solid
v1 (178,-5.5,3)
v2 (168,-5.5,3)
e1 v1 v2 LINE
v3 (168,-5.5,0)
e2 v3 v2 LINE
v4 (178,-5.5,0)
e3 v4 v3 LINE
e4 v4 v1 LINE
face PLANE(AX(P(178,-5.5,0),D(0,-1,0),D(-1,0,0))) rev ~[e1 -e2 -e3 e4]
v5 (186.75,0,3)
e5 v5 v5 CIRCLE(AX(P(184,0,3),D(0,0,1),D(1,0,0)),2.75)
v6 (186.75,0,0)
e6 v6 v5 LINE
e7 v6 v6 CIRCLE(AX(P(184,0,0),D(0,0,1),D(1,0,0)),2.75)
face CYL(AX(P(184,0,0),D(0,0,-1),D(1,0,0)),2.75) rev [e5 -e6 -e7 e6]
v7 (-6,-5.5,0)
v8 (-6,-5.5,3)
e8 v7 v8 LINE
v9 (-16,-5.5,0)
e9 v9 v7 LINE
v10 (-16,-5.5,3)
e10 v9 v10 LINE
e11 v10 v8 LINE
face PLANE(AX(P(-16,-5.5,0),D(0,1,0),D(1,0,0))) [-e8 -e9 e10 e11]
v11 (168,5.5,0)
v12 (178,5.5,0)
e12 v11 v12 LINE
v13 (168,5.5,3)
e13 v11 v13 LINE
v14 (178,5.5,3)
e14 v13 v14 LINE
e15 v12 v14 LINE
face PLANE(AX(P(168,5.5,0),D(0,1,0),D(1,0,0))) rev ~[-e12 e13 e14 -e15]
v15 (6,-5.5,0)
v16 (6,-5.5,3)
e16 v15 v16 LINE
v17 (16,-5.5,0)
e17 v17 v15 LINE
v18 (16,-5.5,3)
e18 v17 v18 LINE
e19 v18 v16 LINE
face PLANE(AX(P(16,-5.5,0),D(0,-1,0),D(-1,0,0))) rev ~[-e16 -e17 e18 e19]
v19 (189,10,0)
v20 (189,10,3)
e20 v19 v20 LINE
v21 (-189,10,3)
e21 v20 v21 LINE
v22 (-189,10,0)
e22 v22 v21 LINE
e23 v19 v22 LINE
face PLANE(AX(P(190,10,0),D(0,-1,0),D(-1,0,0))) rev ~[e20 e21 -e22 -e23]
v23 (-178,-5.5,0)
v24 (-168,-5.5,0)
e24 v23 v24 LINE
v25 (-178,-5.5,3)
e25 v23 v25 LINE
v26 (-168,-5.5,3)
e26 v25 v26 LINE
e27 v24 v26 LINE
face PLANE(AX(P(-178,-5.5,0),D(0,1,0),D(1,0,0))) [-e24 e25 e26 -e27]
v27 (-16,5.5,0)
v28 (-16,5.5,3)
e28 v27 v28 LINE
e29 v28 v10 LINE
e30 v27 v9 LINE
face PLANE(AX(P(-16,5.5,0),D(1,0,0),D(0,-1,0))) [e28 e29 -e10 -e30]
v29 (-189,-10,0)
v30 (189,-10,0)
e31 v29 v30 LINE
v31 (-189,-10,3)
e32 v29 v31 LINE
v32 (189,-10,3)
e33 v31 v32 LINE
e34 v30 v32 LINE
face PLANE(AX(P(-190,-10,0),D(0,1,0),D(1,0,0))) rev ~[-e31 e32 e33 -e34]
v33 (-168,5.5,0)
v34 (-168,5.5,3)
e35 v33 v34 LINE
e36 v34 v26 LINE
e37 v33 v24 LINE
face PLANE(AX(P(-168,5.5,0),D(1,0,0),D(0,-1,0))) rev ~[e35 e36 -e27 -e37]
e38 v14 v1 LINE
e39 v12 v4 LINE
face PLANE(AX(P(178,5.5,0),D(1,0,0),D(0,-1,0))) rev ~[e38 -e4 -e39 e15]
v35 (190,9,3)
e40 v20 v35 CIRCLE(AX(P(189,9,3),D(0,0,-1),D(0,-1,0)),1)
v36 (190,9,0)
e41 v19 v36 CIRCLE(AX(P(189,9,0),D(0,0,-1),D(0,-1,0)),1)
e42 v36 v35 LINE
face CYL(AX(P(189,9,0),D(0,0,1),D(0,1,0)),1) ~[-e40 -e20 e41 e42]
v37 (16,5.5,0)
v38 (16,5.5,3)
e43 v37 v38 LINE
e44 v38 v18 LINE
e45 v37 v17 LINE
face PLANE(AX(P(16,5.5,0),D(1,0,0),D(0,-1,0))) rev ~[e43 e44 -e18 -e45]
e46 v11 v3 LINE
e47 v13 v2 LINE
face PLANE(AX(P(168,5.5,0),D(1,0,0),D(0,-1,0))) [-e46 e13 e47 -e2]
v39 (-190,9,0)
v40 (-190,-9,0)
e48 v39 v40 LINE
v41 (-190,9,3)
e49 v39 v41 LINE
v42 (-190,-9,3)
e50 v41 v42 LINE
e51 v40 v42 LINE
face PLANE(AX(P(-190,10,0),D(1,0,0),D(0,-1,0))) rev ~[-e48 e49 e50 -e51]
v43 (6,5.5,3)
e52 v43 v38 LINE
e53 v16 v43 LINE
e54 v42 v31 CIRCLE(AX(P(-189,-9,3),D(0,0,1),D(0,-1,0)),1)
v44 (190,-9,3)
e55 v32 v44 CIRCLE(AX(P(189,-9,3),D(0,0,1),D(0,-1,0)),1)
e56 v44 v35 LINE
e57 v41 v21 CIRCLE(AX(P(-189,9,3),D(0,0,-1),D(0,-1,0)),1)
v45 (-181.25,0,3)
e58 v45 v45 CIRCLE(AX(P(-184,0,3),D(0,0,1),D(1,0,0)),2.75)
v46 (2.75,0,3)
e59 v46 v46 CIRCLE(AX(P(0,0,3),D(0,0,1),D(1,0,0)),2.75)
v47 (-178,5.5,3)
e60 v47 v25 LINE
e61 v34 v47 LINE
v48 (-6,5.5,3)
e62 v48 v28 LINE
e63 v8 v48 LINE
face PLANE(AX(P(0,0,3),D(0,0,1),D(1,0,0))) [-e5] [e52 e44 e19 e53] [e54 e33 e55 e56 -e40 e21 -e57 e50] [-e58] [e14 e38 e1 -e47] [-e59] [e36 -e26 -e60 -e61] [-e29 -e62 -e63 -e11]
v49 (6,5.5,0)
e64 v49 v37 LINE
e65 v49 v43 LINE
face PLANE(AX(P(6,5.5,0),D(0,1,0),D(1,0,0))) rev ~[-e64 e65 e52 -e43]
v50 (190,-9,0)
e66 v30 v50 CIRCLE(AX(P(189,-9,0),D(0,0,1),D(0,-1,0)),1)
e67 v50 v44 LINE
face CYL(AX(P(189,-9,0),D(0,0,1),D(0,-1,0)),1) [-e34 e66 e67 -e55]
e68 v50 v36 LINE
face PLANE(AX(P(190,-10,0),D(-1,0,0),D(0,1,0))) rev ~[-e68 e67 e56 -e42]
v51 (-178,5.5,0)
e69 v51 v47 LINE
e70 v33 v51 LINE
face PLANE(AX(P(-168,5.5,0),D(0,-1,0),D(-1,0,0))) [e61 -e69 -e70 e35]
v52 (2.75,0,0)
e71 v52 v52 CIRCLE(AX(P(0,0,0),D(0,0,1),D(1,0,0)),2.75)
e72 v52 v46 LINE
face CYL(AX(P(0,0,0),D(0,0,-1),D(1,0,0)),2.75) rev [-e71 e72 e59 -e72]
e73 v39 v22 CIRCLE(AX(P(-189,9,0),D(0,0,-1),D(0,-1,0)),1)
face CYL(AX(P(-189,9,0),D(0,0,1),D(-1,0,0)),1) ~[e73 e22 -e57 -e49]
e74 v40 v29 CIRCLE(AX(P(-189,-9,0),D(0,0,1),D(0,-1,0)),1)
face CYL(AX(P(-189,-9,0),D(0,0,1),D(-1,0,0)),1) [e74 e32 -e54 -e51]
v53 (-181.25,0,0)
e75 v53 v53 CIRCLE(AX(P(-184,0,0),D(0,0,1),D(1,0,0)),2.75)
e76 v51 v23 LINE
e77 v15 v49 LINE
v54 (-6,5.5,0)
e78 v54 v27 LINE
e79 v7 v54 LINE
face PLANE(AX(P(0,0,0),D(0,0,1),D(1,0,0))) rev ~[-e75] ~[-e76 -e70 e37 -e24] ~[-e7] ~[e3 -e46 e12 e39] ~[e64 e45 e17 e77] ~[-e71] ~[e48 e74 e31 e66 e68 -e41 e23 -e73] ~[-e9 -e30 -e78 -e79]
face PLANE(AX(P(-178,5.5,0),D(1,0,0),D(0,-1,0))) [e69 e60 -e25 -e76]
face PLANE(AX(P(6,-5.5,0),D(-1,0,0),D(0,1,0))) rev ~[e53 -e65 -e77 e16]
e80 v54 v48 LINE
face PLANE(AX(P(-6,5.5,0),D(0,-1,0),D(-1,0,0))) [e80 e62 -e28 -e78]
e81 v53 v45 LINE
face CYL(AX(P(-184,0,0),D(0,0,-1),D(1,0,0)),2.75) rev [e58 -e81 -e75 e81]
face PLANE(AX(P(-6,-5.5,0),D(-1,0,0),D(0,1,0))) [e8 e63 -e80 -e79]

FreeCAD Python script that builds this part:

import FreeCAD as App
import Part
import Sketcher

V = App.Vector
Q = App.Units.Quantity


def edges_at(feature, points):
    """Names of the edges that pass closest to the given points."""
    edges = feature.Shape.Edges
    near = lambda p: min(range(len(edges)), key=lambda i: edges[i].distToShape(Part.Vertex(*p))[0])
    return sorted({f"Edge{near(p) + 1}" for p in points})


def add_polygon(sketch, points):
    """Adds a closed chain of lines whose ends are joined by coincident constraints."""
    first, n = sketch.GeometryCount, len(points)
    for a, b in zip(points, points[1:] + points[:1]):
        sketch.addGeometry(Part.LineSegment(App.Vector(*a, 0), App.Vector(*b, 0)), False)
    for i in range(n):
        sketch.addConstraint(Sketcher.Constraint("Coincident", first + i, 2, first + (i + 1) % n, 1))

doc = App.newDocument("Part")
body = doc.addObject("PartDesign::Body", "Body")

# Sketch on XY plane
sketch1 = body.newObject("Sketcher::SketchObject", "Sketch")
sketch1.AttachmentSupport = (doc.getObject("XY_Plane"), [""])
sketch1.MapMode = "FlatFace"
add_polygon(sketch1, [(-190, 10), (-190, -10), (190, -10), (190, 10)])  # lines 0-3
sketch1.addGeometry(Part.Circle(V(-184, 0, 0), V(0, 0, 1), 2.75), False)  # 4
add_polygon(sketch1, [(-168, -5.5), (-178, -5.5), (-178, 5.5), (-168, 5.5)])  # lines 5-8
add_polygon(sketch1, [(-6, -5.5), (-16, -5.5), (-16, 5.5), (-6, 5.5)])  # lines 9-12
sketch1.addGeometry(Part.Circle(V(0, 0, 0), V(0, 0, 1), 2.75), False)  # 13
add_polygon(sketch1, [(178, 5.5), (178, -5.5), (168, -5.5), (168, 5.5)])  # lines 14-17
add_polygon(sketch1, [(6, 5.5), (16, 5.5), (16, -5.5), (6, -5.5)])  # lines 18-21
sketch1.addGeometry(Part.Circle(V(184, 0, 0), V(0, 0, 1), 2.75), False)  # 22
sketch1.addConstraint(Sketcher.Constraint("Vertical", 0))
sketch1.addConstraint(Sketcher.Constraint("Horizontal", 1))
sketch1.addConstraint(Sketcher.Constraint("Vertical", 2))
sketch1.addConstraint(Sketcher.Constraint("Horizontal", 3))
sketch1.addConstraint(Sketcher.Constraint("Horizontal", 5))
sketch1.addConstraint(Sketcher.Constraint("Vertical", 6))
sketch1.addConstraint(Sketcher.Constraint("Horizontal", 7))
sketch1.addConstraint(Sketcher.Constraint("Vertical", 8))
sketch1.addConstraint(Sketcher.Constraint("Horizontal", 9))
sketch1.addConstraint(Sketcher.Constraint("Vertical", 10))
sketch1.addConstraint(Sketcher.Constraint("Horizontal", 11))
sketch1.addConstraint(Sketcher.Constraint("Vertical", 12))
sketch1.addConstraint(Sketcher.Constraint("Vertical", 14))
sketch1.addConstraint(Sketcher.Constraint("Horizontal", 15))
sketch1.addConstraint(Sketcher.Constraint("Vertical", 16))
sketch1.addConstraint(Sketcher.Constraint("Horizontal", 17))
sketch1.addConstraint(Sketcher.Constraint("Horizontal", 18))
sketch1.addConstraint(Sketcher.Constraint("Vertical", 19))
sketch1.addConstraint(Sketcher.Constraint("Horizontal", 20))
sketch1.addConstraint(Sketcher.Constraint("Vertical", 21))
sketch1.addConstraint(Sketcher.Constraint("Coincident", 13, 3, -1, 1))
sketch1.addConstraint(Sketcher.Constraint("Equal", 4, 13))
sketch1.addConstraint(Sketcher.Constraint("Equal", 13, 22))
sketch1.addConstraint(Sketcher.Constraint("Symmetric", 4, 3, 22, 3, -1, 1))
sketch1.addConstraint(Sketcher.Constraint("Symmetric", 0, 2, 2, 2, -1, 1))
sketch1.addConstraint(Sketcher.Constraint("Symmetric", 6, 2, 14, 2, -1, 1))
sketch1.addConstraint(Sketcher.Constraint("Symmetric", 8, 2, 16, 2, -1, 1))
sketch1.addConstraint(Sketcher.Constraint("Symmetric", 9, 2, 18, 2, -1, 1))
sketch1.addConstraint(Sketcher.Constraint("Symmetric", 11, 2, 20, 2, -1, 1))
sketch1.addConstraint(Sketcher.Constraint("PointOnObject", 4, 3, -1))
sketch1.addConstraint(Sketcher.Constraint("Horizontal", 8, 2, 9, 2))
sketch1.addConstraint(Sketcher.Constraint("Horizontal", 7, 2, 10, 2))
sketch1.addConstraint(Sketcher.Constraint("Horizontal", 12, 2, 14, 2))
sketch1.addConstraint(Sketcher.Constraint("Equal", 7, 9))
sketch1.addConstraint(Sketcher.Constraint("Diameter", 4, Q("5.5 mm")))
sketch1.addConstraint(Sketcher.Constraint("DistanceX", 1, 1, 1, 2, Q("380 mm")))
sketch1.addConstraint(Sketcher.Constraint("DistanceX", 5, 2, 5, 1, Q("10 mm")))
sketch1.addConstraint(Sketcher.Constraint("DistanceY", 0, 2, 0, 1, Q("20 mm")))
sketch1.addConstraint(Sketcher.Constraint("DistanceY", 6, 1, 6, 2, Q("11 mm")))
sketch1.addConstraint(Sketcher.Constraint("DistanceX", 11, 2, -1, 1, Q("6 mm")))
sketch1.addConstraint(Sketcher.Constraint("DistanceX", 0, 2, 4, 3, Q("6 mm")))
sketch1.addConstraint(Sketcher.Constraint("DistanceX", 4, 3, 5, 2, Q("6 mm")))
pad1 = body.newObject("PartDesign::Pad", "Pad")
pad1.Profile = sketch1
pad1.Length = 3
doc.recompute()

fillet = body.newObject("PartDesign::Fillet", "Fillet")
fillet.Base = (pad1, edges_at(pad1, [
    (-190, -10, 1.5),
    (-190, 10, 1.5),
    (190, -10, 1.5),
    (190, 10, 1.5),
]))
fillet.Radius = 1

doc.recompute()
